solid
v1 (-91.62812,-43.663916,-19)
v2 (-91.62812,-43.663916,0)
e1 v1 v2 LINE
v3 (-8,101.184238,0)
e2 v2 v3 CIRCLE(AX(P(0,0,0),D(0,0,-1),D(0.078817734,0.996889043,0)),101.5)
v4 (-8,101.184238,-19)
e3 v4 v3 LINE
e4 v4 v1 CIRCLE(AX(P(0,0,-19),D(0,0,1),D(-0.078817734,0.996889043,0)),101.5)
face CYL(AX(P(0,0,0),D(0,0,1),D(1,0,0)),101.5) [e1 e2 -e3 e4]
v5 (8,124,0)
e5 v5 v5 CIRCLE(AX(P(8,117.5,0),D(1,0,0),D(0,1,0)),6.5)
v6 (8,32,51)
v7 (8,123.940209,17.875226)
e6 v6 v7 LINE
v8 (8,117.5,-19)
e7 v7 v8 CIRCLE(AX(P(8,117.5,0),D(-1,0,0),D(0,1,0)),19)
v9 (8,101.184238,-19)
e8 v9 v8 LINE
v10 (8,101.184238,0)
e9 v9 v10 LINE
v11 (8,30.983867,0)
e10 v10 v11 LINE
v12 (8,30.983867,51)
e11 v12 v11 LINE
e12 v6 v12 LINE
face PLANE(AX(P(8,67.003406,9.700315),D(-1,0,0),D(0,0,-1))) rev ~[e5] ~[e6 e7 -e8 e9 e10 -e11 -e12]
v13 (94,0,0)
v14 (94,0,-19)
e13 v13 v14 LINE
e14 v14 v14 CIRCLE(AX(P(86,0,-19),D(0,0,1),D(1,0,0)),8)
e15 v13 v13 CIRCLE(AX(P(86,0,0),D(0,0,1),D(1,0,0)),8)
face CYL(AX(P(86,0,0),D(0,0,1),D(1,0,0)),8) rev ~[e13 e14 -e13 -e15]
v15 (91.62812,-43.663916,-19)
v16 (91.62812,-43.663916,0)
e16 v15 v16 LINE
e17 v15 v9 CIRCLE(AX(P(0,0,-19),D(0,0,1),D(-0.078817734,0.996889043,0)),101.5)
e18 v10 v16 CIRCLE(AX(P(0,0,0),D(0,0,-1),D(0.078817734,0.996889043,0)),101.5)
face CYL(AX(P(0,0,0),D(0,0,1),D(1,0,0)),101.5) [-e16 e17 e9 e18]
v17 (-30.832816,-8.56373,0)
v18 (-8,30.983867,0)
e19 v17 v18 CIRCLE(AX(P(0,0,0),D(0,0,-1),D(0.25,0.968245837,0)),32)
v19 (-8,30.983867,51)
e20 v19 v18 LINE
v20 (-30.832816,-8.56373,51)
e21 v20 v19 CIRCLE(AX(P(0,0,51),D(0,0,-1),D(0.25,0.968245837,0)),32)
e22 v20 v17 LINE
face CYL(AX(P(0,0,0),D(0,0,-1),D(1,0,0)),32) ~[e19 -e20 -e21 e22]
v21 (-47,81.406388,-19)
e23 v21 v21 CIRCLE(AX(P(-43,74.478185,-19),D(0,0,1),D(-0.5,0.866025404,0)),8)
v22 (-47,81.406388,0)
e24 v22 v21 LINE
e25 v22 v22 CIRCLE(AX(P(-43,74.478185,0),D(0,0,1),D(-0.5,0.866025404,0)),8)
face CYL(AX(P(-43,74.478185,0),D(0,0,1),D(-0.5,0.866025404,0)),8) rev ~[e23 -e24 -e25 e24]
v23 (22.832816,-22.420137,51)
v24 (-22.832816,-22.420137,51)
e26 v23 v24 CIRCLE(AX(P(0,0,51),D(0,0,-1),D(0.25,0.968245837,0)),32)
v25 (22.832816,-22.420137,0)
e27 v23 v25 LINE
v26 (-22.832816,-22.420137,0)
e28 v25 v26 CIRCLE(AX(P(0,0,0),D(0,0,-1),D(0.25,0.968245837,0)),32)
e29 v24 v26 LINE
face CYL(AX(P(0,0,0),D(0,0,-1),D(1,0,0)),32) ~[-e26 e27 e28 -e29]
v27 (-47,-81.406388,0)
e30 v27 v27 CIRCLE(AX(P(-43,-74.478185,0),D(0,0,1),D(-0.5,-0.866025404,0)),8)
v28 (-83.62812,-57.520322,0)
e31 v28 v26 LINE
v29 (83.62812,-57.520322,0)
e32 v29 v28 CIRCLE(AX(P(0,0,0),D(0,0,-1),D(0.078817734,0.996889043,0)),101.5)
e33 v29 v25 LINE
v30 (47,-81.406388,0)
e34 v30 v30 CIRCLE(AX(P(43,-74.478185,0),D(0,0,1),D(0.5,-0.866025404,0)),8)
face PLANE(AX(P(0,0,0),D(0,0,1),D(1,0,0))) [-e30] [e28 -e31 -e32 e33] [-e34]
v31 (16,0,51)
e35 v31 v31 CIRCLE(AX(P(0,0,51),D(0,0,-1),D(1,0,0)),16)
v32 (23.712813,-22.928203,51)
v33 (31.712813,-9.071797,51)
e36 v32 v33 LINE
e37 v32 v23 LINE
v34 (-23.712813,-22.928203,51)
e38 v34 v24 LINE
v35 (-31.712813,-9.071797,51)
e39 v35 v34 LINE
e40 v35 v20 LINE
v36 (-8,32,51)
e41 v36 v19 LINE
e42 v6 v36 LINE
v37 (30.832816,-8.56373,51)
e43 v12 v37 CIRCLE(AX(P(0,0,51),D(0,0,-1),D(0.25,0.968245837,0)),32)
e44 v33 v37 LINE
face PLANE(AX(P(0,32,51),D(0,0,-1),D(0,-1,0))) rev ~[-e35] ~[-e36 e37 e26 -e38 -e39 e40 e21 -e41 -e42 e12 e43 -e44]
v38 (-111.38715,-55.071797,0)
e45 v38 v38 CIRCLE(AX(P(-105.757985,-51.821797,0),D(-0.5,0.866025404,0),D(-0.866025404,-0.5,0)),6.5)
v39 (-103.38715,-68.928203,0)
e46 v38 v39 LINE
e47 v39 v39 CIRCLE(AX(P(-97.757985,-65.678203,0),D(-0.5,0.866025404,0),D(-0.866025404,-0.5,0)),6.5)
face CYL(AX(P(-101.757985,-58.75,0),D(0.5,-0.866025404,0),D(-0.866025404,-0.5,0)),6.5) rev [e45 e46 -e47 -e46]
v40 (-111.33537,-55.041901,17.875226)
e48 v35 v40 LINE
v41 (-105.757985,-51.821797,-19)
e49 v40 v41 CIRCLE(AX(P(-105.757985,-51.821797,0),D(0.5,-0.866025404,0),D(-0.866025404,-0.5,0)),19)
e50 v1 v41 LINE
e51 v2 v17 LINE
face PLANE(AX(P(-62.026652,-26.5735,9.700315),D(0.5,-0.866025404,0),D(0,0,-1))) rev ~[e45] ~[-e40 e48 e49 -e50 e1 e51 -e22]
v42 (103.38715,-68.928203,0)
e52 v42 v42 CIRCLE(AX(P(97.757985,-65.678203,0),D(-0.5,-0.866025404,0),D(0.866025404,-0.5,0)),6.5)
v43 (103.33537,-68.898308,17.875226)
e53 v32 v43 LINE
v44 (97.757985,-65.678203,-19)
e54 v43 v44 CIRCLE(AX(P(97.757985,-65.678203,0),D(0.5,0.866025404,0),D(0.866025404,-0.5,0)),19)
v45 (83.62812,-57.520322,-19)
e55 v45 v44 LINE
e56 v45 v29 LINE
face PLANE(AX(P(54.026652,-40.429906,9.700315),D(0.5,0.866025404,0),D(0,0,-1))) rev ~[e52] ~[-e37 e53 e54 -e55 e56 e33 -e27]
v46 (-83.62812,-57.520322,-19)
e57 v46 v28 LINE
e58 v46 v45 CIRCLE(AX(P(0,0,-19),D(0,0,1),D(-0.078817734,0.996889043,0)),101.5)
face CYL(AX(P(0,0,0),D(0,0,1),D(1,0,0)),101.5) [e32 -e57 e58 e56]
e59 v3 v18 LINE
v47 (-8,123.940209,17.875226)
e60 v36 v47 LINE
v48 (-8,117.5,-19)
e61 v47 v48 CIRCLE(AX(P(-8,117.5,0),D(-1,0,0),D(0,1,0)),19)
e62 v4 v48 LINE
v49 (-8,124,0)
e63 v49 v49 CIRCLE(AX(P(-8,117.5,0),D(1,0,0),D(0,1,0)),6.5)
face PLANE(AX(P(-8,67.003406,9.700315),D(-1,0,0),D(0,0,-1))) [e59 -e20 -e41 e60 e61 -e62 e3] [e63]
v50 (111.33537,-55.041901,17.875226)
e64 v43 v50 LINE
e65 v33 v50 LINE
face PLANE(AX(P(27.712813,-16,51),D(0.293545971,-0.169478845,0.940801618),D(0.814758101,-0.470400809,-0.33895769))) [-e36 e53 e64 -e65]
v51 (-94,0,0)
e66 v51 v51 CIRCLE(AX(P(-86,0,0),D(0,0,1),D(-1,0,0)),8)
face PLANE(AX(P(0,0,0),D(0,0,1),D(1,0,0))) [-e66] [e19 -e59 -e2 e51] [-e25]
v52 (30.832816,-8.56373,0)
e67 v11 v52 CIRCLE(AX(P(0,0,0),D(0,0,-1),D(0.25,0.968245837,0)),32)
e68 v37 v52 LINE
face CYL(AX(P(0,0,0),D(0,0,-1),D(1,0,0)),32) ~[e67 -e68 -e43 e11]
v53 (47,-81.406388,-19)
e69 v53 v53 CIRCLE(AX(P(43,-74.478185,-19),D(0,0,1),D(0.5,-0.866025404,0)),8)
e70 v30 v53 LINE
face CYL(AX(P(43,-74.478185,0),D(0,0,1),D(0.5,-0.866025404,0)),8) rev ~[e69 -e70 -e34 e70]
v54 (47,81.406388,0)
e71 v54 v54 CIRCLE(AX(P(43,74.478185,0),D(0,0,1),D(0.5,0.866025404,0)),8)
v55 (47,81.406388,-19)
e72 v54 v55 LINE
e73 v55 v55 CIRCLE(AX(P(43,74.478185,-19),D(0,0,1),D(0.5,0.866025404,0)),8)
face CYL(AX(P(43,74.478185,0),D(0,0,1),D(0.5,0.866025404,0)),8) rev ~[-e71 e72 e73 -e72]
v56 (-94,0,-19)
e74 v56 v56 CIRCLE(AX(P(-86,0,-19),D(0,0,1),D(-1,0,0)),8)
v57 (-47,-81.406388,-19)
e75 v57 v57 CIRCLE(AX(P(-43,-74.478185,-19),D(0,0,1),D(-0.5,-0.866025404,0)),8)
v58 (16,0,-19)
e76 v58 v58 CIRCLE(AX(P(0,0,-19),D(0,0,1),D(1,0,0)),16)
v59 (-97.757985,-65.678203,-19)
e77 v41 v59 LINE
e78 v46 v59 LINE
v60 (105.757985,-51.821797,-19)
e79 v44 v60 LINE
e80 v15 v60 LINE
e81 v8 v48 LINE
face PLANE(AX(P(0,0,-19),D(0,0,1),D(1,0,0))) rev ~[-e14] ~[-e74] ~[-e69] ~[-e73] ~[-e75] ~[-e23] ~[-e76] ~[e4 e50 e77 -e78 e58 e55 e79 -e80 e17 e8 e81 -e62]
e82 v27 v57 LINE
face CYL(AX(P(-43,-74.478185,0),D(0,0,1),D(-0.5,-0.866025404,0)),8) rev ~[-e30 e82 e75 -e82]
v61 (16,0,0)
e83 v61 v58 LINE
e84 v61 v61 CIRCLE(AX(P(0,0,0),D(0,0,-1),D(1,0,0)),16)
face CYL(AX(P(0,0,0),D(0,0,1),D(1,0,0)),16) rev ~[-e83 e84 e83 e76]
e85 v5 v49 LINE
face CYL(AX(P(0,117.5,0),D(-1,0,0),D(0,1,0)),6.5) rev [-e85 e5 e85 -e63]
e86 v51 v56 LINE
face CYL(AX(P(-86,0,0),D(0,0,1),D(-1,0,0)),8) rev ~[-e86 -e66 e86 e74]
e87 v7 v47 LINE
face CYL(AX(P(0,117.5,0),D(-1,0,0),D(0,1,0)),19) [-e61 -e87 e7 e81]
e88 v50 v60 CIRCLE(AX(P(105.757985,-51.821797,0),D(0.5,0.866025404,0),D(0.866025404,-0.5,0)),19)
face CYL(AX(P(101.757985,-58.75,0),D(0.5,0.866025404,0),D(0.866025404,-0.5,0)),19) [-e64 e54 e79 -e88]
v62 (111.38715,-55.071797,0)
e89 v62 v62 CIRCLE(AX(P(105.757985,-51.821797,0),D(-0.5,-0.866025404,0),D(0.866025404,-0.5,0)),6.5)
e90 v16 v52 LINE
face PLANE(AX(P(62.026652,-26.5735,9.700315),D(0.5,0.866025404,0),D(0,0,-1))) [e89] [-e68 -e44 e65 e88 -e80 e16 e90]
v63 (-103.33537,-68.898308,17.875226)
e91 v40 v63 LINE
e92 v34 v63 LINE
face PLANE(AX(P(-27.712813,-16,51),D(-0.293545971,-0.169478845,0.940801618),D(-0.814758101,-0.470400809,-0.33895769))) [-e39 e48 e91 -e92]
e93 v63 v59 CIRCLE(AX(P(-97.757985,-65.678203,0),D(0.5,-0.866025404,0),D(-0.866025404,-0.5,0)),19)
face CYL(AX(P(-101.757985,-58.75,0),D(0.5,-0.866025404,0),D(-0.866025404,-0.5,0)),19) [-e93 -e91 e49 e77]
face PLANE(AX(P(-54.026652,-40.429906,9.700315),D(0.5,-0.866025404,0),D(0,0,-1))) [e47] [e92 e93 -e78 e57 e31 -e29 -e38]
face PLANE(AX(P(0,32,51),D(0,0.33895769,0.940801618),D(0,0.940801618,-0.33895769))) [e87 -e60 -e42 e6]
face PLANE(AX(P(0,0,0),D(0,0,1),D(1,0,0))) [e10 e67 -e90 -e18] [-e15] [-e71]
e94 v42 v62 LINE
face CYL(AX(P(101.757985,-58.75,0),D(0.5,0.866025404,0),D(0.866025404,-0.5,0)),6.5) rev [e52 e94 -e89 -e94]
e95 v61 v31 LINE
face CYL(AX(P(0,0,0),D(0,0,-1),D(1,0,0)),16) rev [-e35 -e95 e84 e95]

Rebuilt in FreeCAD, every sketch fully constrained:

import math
import FreeCAD as App
import Part
import Sketcher

V = App.Vector
Q = App.Units.Quantity

doc = App.newDocument("Part")
body = doc.addObject("PartDesign::Body", "Body")

# Sketch on XY plane
sketch1 = body.newObject("Sketcher::SketchObject", "Sketch")
sketch1.AttachmentSupport = (doc.getObject("XY_Plane"), [""])
sketch1.MapMode = "FlatFace"
sketch1.addGeometry(Part.Circle(V(0, 0, 0), V(0, 0, 1), 102), False)
sketch1.addConstraint([
    Sketcher.Constraint("Coincident", 0, 3, -1, 1),
    Sketcher.Constraint("Diameter", 0, Q("203 mm")),
])
pad1 = body.newObject("PartDesign::Pad", "Pad")
pad1.Profile = sketch1
pad1.Length = 19
pad1.Reversed = True

# Sketch on XY plane
sketch2 = body.newObject("Sketcher::SketchObject", "Sketch001")
sketch2.AttachmentSupport = (doc.getObject("XY_Plane"), [""])
sketch2.MapMode = "FlatFace"
sketch2.addGeometry([
    Part.Circle(V(0, 0, 0), V(0, 0, 1), 32),
    Part.Circle(V(0, 0, 0), V(0, 0, 1), 16),
], False)
sketch2.addConstraint([
    Sketcher.Constraint("Coincident", 0, 3, -1, 1),
    Sketcher.Constraint("Coincident", 1, 3, -1, 1),
    Sketcher.Constraint("Diameter", 0, Q("64 mm")),
    Sketcher.Constraint("Diameter", 1, Q("32 mm")),
])
pad2 = body.newObject("PartDesign::Pad", "Pad001")
pad2.Profile = sketch2
pad2.Length = 51

# Sketch on XY plane
sketch3 = body.newObject("Sketcher::SketchObject", "Sketch002")
sketch3.AttachmentSupport = (doc.getObject("XY_Plane"), [""])
sketch3.MapMode = "FlatFace"
sketch3.addGeometry(Part.Circle(V(86, 0, 0), V(0, 0, 1), 8), False)
sketch3.addConstraint([
    Sketcher.Constraint("PointOnObject", 0, 3, -1),
    Sketcher.Constraint("Diameter", 0, Q("16 mm")),
    Sketcher.Constraint("DistanceX", -1, 1, 0, 3, Q("86 mm")),
])
pocket1 = body.newObject("PartDesign::Pocket", "Pocket")
pocket1.Profile = sketch3
pocket1.Length = 19
doc.recompute()

polarpattern = body.newObject("PartDesign::PolarPattern", "PolarPattern")
polarpattern.Originals = [pocket1]
polarpattern.Axis = (doc.getObject("Z_Axis"), [""])
polarpattern.Angle = 360
polarpattern.Occurrences = 6
body.Tip = polarpattern

# Sketch on YZ plane
sketch4 = body.newObject("Sketcher::SketchObject", "Sketch003")
sketch4.AttachmentSupport = (doc.getObject("YZ_Plane"), [""])
sketch4.MapMode = "FlatFace"
sketch4.addGeometry([
    Part.LineSegment(V(124, 18, 0), V(32, 51, 0)),  # 0
    Part.LineSegment(V(32, 51, 0), V(16, 51, 0)),  # 1
    Part.LineSegment(V(16, 51, 0), V(16, -19, 0)),  # 2
    Part.LineSegment(V(16, -19, 0), V(118, -19, 0)),  # 3
    Part.ArcOfCircle(Part.Circle(V(118, 0, 0), V(0, 0, 1), 19), math.radians(-90), math.radians(70)),  # 4
    Part.Circle(V(118, 0, 0), V(0, 0, 1), 6),  # 5
], False)
sketch4.addConstraint([
    Sketcher.Constraint("Coincident", 0, 2, 1, 1),
    Sketcher.Constraint("Coincident", 1, 2, 2, 1),
    Sketcher.Constraint("Coincident", 2, 2, 3, 1),
    Sketcher.Constraint("Tangent", 3, 2, 4, 1),
    Sketcher.Constraint("Tangent", 4, 2, 0, 1),
    Sketcher.Constraint("Horizontal", 1),
    Sketcher.Constraint("Vertical", 2),
    Sketcher.Constraint("Horizontal", 3),
    Sketcher.Constraint("Coincident", 5, 3, 4, 3),
    Sketcher.Constraint("PointOnObject", 4, 3, -1),
    Sketcher.Constraint("Diameter", 5, Q("13 mm")),
    Sketcher.Constraint("Radius", 4, Q("19 mm")),
    Sketcher.Constraint("DistanceX", 1, 2, 1, 1, Q("16 mm")),
    Sketcher.Constraint("DistanceY", 2, 2, 2, 1, Q("70 mm")),
    Sketcher.Constraint("DistanceX", 3, 1, 3, 2, Q("101.5 mm")),
    Sketcher.Constraint("DistanceX", -1, 1, 0, 2, Q("32 mm")),
])
pad3 = body.newObject("PartDesign::Pad", "Pad002")
pad3.Profile = sketch4
pad3.Length = 16
pad3.Midplane = True
doc.recompute()

polarpattern2 = body.newObject("PartDesign::PolarPattern", "PolarPattern001")
polarpattern2.Originals = [pad3]
polarpattern2.Axis = (doc.getObject("Z_Axis"), [""])
polarpattern2.Angle = 360
polarpattern2.Occurrences = 3
body.Tip = polarpattern2

# Sketch on XY plane
sketch5 = body.newObject("Sketcher::SketchObject", "Sketch004")
sketch5.AttachmentSupport = (doc.getObject("XY_Plane"), [""])
sketch5.MapMode = "FlatFace"
sketch5.addGeometry(Part.Circle(V(0, 0, 0), V(0, 0, 1), 16), False)
sketch5.addConstraint([
    Sketcher.Constraint("Coincident", 0, 3, -1, 1),
    Sketcher.Constraint("Diameter", 0, Q("32 mm")),
])
pocket2 = body.newObject("PartDesign::Pocket", "Pocket001")
pocket2.Profile = sketch5
pocket2.Length = 19

doc.recompute()
